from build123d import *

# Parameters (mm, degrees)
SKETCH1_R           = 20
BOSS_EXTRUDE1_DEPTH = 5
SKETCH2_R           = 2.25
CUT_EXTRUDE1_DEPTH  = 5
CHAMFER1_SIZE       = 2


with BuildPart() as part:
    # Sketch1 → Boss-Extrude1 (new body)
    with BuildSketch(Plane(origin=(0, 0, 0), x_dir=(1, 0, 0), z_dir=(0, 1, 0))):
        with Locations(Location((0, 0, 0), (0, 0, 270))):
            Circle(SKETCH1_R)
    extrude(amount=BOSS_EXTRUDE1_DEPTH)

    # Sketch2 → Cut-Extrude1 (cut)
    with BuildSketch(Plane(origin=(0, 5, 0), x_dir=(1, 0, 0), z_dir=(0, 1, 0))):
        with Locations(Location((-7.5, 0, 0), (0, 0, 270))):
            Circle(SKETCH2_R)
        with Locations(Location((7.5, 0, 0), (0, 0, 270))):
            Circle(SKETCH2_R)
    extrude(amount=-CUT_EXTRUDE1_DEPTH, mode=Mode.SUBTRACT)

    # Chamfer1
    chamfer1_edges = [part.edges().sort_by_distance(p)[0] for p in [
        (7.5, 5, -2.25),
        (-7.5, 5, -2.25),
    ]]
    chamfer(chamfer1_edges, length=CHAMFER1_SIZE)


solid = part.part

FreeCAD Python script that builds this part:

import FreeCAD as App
import Part
import Sketcher
Q = App.Units.Quantity


def edges_at(feature, points):
    """Names of the edges that pass closest to the given points."""
    edges = feature.Shape.Edges
    near = lambda p: min(range(len(edges)), key=lambda i: edges[i].distToShape(Part.Vertex(*p))[0])
    return sorted({f"Edge{near(p) + 1}" for p in points})

doc = App.newDocument("Part")
body = doc.addObject("PartDesign::Body", "Body")

# Sketch on XZ plane
sketch1 = body.newObject("Sketcher::SketchObject", "Sketch")
sketch1.AttachmentSupport = (doc.getObject("XZ_Plane"), [""])
sketch1.MapMode = "FlatFace"
sketch1.addGeometry(Part.Circle(App.Vector(0, 0, 0), App.Vector(0, 0, 1), 20), False)
sketch1.addConstraint([
    Sketcher.Constraint("Coincident", 0, 3, -1, 1),
    Sketcher.Constraint("Diameter", 0, Q("40 mm")),
])
pad1 = body.newObject("PartDesign::Pad", "Pad")
pad1.Profile = sketch1
pad1.Length = 5
pad1.Reversed = True

# Sketch on XZ plane
sketch2 = body.newObject("Sketcher::SketchObject", "Sketch001")
sketch2.AttachmentSupport = (doc.getObject("XZ_Plane"), [""])
sketch2.MapMode = "FlatFace"
sketch2.AttachmentOffset = App.Placement(App.Vector(0, 0, -5), App.Rotation())
sketch2.addGeometry([
    Part.Circle(App.Vector(-7.5, 0, 0), App.Vector(0, 0, 1), 2.2),
    Part.Circle(App.Vector(7.5, 0, 0), App.Vector(0, 0, 1), 2.2),
], False)
sketch2.addConstraint([
    Sketcher.Constraint("Equal", 0, 1),
    Sketcher.Constraint("Symmetric", 0, 3, 1, 3, -1, 1),
    Sketcher.Constraint("PointOnObject", 0, 3, -1),
    Sketcher.Constraint("Diameter", 0, Q("4.5 mm")),
    Sketcher.Constraint("DistanceX", 0, 3, 1, 3, Q("15 mm")),
])
pocket1 = body.newObject("PartDesign::Pocket", "Pocket")
pocket1.Profile = sketch2
pocket1.Length = 5
pocket1.Reversed = True
doc.recompute()

chamfer = body.newObject("PartDesign::Chamfer", "Chamfer")
chamfer.Base = (pocket1, edges_at(pocket1, [(7.5, 5, -2.25), (-7.5, 5, -2.25)]))
chamfer.Size = 2

doc.recompute()
